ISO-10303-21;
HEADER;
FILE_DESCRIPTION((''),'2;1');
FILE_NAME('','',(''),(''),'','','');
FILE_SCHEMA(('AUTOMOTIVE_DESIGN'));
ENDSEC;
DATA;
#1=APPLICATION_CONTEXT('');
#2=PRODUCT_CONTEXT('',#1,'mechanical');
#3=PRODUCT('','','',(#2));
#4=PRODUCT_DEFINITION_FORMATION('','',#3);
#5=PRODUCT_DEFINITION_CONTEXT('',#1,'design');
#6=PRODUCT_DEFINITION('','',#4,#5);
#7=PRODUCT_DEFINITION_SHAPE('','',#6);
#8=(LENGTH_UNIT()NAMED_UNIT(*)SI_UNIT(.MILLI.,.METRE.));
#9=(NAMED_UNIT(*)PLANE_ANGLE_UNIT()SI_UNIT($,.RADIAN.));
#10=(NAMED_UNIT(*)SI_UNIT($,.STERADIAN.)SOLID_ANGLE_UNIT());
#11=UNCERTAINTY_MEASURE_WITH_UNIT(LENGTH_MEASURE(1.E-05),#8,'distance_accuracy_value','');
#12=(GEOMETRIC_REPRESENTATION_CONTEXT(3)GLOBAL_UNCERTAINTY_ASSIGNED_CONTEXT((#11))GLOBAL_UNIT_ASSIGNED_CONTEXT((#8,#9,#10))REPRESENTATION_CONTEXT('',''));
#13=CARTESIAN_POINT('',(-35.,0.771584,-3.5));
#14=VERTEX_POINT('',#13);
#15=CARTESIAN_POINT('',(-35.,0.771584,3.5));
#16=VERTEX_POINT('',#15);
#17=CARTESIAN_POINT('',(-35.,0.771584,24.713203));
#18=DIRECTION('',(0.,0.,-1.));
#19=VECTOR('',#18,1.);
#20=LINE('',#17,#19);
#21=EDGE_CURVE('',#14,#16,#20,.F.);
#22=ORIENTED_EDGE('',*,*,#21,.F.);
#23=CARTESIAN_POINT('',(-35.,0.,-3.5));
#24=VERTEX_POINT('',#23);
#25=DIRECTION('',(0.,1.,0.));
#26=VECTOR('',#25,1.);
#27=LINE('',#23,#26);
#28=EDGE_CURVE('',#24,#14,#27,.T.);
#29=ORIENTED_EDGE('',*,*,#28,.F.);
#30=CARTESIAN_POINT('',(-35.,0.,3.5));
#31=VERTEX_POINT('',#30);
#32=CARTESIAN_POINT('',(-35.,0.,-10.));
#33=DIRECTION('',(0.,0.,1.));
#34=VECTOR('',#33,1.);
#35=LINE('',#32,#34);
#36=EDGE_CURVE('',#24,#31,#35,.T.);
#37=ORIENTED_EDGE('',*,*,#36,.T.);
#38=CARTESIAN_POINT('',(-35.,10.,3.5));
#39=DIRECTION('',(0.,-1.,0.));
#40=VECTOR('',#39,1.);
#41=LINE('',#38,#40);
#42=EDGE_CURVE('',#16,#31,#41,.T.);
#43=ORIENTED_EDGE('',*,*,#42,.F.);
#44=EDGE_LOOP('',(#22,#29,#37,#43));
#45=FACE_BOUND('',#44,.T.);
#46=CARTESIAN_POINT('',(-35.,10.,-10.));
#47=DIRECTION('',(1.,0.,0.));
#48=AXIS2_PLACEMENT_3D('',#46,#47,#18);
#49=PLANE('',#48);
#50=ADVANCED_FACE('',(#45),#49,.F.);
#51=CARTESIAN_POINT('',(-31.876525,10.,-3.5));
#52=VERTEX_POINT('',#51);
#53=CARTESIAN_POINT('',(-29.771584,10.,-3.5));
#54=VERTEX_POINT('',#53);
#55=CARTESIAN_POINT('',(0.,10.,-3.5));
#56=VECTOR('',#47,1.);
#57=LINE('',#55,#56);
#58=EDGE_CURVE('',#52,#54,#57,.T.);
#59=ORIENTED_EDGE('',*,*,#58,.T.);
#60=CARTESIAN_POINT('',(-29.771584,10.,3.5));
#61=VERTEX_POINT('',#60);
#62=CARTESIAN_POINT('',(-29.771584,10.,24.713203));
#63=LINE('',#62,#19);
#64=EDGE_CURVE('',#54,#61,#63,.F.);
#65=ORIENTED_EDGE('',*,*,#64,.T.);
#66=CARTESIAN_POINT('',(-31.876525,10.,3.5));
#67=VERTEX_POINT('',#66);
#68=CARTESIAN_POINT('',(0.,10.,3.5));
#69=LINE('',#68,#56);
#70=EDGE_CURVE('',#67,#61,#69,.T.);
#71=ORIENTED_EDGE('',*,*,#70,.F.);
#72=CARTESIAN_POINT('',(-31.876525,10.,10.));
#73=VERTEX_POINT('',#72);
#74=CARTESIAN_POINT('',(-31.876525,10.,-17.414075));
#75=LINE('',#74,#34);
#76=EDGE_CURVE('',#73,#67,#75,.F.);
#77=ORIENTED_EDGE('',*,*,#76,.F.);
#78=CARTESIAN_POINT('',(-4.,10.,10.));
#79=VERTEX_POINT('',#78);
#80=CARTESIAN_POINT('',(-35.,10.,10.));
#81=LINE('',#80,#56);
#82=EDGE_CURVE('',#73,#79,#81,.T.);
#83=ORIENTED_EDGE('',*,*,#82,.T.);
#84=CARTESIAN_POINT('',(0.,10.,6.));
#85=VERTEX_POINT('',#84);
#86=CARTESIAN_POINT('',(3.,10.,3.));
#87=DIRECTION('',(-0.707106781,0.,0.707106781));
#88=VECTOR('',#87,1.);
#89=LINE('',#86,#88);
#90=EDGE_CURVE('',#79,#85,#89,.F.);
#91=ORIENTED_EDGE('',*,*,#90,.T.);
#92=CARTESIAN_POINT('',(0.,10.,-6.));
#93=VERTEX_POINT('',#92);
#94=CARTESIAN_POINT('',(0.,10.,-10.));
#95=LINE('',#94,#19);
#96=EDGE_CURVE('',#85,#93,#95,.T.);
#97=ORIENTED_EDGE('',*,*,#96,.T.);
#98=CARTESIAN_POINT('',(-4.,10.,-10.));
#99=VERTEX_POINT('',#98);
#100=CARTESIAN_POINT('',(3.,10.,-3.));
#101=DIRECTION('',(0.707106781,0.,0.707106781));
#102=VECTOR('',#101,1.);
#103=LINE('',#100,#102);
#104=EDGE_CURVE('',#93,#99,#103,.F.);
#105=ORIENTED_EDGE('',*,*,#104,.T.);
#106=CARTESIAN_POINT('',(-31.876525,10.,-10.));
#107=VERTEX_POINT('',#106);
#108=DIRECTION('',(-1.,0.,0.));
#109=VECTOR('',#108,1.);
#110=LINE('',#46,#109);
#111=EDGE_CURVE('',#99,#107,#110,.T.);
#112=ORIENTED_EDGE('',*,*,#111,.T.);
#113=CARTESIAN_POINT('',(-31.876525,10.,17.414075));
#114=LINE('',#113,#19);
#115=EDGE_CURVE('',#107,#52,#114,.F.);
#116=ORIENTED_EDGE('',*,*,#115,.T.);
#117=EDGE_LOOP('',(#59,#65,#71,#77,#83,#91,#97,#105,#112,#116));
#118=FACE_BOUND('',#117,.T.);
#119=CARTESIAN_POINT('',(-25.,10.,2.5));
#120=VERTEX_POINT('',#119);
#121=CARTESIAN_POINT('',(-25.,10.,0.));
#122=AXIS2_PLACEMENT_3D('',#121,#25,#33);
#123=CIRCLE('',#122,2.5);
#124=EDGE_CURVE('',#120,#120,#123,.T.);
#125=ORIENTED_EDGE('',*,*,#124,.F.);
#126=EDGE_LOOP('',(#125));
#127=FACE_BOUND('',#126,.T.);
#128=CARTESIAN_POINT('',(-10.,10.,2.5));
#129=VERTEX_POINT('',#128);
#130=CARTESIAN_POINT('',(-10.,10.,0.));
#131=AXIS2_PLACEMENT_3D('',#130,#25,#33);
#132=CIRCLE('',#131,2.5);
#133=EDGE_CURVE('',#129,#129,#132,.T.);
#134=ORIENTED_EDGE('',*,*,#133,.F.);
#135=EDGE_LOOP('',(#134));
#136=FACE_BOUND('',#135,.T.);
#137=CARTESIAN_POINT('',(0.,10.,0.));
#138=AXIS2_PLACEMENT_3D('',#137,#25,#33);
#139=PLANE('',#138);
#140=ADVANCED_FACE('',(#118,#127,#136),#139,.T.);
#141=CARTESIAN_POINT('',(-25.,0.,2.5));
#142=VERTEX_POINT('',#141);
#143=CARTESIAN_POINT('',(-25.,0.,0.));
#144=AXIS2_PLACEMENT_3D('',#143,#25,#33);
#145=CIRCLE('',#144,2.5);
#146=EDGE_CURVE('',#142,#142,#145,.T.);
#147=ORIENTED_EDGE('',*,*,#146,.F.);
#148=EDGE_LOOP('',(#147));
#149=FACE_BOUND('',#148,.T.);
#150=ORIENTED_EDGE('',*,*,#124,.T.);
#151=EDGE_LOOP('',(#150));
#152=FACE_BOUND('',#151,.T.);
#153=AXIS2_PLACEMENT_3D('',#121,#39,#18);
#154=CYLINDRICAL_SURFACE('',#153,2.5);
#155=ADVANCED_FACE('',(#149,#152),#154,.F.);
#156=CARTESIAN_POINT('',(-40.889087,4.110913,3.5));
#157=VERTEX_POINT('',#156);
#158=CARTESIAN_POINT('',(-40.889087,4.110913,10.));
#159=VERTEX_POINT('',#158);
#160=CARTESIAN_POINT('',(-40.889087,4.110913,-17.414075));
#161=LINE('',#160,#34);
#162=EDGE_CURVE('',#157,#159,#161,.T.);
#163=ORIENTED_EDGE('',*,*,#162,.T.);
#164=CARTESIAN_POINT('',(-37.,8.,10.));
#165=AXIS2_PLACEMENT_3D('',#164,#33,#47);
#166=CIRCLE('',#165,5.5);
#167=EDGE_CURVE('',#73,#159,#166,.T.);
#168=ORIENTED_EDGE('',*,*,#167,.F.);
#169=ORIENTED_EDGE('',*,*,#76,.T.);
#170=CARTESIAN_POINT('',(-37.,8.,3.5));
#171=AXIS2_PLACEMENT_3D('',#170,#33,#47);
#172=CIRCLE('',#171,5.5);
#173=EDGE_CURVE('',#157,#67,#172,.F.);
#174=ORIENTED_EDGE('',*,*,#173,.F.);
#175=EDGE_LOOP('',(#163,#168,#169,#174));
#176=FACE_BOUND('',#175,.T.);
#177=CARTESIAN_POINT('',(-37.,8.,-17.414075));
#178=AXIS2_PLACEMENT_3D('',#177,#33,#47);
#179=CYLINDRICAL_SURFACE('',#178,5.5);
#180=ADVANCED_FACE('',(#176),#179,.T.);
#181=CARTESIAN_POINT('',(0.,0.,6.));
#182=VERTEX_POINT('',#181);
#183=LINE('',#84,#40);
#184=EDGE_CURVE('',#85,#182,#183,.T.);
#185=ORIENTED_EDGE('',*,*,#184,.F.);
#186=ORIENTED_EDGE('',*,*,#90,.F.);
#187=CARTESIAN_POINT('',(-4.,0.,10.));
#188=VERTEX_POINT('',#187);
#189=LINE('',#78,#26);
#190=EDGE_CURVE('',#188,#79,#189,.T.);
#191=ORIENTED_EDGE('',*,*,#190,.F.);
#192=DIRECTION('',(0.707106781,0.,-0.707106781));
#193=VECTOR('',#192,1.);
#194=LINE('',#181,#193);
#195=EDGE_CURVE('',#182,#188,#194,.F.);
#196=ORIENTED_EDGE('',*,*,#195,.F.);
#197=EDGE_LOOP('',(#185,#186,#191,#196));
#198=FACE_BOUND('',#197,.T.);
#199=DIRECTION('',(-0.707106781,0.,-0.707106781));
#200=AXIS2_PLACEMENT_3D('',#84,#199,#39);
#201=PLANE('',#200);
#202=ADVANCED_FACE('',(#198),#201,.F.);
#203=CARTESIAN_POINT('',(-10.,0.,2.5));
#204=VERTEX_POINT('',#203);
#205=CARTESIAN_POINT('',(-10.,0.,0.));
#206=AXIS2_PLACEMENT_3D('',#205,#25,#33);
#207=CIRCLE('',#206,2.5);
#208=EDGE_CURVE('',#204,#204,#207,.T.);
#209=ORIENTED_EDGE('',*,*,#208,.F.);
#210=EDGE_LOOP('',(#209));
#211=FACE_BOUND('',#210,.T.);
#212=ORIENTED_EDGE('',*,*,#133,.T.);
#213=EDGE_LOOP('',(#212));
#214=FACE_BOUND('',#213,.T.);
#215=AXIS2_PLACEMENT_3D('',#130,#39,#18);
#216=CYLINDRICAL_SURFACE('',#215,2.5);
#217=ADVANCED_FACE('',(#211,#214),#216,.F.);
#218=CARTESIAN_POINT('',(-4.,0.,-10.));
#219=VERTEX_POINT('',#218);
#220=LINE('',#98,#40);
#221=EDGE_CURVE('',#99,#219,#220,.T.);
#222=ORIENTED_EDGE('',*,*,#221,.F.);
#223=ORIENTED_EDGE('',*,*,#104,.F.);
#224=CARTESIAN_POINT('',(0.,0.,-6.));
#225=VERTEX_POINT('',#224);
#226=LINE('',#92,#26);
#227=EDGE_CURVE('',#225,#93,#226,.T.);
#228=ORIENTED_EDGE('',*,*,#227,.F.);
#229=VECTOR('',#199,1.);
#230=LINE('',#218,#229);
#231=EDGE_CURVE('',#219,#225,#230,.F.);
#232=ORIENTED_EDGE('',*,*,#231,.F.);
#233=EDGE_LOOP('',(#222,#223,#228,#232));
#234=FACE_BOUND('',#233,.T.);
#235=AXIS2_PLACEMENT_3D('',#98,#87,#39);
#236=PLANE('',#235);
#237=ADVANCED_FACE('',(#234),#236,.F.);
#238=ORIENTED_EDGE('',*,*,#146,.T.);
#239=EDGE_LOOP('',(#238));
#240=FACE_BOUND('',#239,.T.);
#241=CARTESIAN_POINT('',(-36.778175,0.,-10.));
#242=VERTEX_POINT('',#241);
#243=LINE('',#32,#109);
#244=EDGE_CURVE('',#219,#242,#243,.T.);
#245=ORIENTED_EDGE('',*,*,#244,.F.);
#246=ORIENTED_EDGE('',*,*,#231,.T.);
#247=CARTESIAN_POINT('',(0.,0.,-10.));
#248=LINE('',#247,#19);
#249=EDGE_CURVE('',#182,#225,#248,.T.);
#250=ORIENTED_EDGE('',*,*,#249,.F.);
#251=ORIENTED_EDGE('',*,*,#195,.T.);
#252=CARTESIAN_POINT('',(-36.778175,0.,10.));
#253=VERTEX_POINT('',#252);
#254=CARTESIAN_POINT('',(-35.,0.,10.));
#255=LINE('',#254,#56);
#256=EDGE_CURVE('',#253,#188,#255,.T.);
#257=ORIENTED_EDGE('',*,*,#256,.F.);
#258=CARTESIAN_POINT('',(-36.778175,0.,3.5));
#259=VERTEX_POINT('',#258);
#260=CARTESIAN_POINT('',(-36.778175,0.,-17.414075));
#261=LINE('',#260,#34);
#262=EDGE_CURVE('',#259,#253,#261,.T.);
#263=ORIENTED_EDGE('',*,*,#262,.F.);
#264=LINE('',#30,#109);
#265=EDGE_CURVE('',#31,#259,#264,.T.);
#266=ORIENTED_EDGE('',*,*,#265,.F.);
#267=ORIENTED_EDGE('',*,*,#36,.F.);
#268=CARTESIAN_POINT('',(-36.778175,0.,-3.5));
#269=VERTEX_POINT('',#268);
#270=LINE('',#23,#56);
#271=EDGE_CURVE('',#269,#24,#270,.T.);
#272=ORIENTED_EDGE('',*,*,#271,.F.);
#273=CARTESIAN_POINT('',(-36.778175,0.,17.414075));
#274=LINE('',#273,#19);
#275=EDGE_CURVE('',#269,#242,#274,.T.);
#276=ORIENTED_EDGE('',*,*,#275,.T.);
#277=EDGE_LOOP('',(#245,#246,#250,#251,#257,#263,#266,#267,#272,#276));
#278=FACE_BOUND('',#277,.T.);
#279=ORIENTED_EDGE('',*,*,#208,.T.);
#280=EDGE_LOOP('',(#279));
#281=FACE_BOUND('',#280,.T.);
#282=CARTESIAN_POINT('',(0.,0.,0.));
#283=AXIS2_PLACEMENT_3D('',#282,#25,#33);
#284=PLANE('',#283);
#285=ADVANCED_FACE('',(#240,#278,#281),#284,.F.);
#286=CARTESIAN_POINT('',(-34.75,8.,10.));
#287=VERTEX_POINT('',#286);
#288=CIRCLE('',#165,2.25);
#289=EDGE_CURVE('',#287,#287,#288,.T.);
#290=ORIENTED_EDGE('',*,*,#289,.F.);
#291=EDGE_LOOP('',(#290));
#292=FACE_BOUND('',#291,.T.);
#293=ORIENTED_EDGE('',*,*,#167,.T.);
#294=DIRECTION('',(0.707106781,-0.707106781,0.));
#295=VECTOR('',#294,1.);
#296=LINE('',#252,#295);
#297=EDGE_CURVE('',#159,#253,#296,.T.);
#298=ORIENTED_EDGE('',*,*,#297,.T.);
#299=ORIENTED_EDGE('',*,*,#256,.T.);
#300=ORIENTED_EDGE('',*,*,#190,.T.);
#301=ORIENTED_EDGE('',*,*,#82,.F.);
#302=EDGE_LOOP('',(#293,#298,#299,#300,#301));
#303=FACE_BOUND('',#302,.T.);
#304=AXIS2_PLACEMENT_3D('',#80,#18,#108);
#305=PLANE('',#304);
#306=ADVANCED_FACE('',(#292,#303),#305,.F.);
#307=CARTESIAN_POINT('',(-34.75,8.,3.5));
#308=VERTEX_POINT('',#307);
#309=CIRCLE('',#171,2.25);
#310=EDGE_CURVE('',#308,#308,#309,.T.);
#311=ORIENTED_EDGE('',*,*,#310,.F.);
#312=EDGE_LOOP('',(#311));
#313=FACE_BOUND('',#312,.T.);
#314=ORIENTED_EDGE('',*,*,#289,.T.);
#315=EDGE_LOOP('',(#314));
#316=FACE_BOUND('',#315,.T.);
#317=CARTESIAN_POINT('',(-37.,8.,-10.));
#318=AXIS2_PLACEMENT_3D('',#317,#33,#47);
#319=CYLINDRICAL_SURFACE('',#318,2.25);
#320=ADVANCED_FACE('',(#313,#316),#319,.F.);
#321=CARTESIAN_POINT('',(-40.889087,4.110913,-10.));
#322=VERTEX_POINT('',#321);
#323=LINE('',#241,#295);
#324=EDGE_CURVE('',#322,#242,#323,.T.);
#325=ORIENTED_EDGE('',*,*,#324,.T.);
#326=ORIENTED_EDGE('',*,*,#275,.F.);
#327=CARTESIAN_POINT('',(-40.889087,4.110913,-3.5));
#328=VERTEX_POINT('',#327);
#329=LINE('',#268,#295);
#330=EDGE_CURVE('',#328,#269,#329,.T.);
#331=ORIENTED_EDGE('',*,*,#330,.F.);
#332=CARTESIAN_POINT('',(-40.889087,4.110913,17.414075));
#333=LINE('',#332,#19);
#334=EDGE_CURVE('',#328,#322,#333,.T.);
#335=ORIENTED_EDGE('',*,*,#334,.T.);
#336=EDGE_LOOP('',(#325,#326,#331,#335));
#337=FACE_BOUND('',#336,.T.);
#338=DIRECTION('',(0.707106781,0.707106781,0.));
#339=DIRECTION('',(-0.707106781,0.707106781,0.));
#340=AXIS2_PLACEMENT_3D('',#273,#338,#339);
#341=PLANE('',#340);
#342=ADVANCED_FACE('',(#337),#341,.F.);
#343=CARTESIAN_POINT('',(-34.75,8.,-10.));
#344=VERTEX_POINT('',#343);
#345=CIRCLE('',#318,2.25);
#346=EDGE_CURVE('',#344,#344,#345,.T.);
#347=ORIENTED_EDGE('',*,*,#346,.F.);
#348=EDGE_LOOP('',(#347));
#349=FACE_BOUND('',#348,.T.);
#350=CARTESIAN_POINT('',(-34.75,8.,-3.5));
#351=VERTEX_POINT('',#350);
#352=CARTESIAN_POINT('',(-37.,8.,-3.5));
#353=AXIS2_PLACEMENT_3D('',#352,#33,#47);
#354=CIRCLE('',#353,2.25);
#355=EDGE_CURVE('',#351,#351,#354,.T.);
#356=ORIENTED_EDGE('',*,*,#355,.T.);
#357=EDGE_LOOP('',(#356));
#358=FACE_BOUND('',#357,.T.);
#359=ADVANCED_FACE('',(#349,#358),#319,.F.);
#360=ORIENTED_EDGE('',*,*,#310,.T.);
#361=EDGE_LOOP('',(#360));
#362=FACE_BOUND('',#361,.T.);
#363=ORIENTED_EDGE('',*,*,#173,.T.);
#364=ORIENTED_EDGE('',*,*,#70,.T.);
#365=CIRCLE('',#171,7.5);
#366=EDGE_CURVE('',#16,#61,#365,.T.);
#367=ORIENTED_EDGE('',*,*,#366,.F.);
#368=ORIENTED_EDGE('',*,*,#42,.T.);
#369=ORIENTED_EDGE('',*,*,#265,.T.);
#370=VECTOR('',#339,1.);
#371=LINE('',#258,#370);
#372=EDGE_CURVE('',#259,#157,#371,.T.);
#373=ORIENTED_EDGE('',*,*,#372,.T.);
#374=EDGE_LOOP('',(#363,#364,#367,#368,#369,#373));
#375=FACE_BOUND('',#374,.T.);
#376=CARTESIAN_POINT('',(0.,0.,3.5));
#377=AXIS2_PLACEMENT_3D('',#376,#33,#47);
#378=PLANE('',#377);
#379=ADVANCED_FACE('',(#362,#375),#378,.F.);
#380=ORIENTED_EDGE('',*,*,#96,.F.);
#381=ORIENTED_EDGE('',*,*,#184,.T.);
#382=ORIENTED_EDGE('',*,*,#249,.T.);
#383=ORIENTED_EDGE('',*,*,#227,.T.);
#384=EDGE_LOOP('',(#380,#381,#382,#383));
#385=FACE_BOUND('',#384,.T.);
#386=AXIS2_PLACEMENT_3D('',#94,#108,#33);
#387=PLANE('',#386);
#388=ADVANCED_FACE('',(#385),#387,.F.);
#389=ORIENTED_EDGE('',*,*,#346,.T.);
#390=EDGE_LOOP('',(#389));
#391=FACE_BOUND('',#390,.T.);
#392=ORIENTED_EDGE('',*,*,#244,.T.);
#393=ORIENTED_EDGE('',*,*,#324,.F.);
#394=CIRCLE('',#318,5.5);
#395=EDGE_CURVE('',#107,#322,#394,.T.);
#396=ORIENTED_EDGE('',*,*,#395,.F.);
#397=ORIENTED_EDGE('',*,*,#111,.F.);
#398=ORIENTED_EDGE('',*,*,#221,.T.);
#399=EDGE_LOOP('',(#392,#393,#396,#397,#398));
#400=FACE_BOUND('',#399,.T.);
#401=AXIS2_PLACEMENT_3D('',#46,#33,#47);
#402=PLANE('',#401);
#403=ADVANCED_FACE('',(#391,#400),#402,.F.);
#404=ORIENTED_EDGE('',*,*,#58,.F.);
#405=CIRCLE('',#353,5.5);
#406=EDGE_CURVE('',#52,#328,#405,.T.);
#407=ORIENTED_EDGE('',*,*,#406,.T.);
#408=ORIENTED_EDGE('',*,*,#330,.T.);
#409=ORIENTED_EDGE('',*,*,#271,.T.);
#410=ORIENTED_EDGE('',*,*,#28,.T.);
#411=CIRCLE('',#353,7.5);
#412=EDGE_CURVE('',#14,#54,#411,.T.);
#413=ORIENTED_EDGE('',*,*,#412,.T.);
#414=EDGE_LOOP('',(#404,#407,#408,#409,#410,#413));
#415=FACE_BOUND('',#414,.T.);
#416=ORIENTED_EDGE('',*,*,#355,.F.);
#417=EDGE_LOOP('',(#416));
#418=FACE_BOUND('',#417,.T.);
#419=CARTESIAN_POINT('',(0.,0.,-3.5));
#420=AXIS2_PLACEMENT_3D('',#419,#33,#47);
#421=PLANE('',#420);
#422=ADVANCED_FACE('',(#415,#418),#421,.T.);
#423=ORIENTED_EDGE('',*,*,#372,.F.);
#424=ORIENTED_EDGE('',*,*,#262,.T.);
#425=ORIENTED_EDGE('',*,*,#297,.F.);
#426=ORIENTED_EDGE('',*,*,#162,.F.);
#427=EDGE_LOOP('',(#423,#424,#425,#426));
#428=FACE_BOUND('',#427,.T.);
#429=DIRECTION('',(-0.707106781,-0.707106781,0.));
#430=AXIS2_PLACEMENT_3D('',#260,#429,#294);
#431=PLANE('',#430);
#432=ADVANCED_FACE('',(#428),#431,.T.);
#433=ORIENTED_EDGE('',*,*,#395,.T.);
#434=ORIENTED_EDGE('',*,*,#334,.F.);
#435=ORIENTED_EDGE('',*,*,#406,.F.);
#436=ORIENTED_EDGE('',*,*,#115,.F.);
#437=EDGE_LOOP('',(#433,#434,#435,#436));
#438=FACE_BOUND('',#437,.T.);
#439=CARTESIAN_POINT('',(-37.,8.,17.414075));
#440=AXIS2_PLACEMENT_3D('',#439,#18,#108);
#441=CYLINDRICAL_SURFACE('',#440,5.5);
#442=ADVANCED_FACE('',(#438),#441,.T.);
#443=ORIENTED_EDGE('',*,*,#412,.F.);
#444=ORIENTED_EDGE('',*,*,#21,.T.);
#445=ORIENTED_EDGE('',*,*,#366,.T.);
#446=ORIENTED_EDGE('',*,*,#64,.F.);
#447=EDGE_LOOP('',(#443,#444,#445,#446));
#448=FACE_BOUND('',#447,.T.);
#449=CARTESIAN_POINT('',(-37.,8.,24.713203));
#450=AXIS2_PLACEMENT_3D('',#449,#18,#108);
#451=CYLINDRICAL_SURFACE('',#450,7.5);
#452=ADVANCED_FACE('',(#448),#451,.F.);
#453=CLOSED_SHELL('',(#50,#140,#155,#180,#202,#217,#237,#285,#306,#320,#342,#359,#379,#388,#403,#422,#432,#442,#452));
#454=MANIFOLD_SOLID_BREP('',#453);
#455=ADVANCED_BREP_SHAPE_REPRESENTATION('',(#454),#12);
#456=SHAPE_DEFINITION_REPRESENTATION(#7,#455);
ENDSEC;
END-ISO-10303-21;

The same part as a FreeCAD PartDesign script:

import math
import FreeCAD as App
import Part
import Sketcher
Q = App.Units.Quantity


def edges_at(feature, points):
    """Names of the edges that pass closest to the given points."""
    edges = feature.Shape.Edges
    near = lambda p: min(range(len(edges)), key=lambda i: edges[i].distToShape(Part.Vertex(*p))[0])
    return sorted({f"Edge{near(p) + 1}" for p in points})

doc = App.newDocument("Part")
body = doc.addObject("PartDesign::Body", "Body")

sketch1 = body.newObject("Sketcher::SketchObject", "Sketch")
sketch1.AttachmentSupport = (doc.getObject("XZ_Plane"), [""])
sketch1.MapMode = "FlatFace"
sketch1.addGeometry([
    Part.LineSegment(App.Vector(-35, -10, 0), App.Vector(-35, 10, 0)),
    Part.LineSegment(App.Vector(-35, 10, 0), App.Vector(0, 10, 0)),
    Part.LineSegment(App.Vector(0, 10, 0), App.Vector(0, -10, 0)),
    Part.LineSegment(App.Vector(0, -10, 0), App.Vector(-35, -10, 0)),
    Part.Circle(App.Vector(-25, 0, 0), App.Vector(0, 0, 1), 2.5),
    Part.Circle(App.Vector(-10, 0, 0), App.Vector(0, 0, 1), 2.5),
], False)
sketch1.addConstraint([
    Sketcher.Constraint("Coincident", 0, 2, 1, 1),
    Sketcher.Constraint("Coincident", 1, 2, 2, 1),
    Sketcher.Constraint("Coincident", 2, 2, 3, 1),
    Sketcher.Constraint("Coincident", 3, 2, 0, 1),
    Sketcher.Constraint("Vertical", 0),
    Sketcher.Constraint("Horizontal", 1),
    Sketcher.Constraint("Vertical", 2),
    Sketcher.Constraint("Horizontal", 3),
    Sketcher.Constraint("Equal", 4, 5),
    Sketcher.Constraint("Symmetric", 1, 2, 2, 2, -1, 1),
    Sketcher.Constraint("PointOnObject", 4, 3, -1),
    Sketcher.Constraint("PointOnObject", 5, 3, -1),
    Sketcher.Constraint("Diameter", 4, 5.0),
    Sketcher.Constraint("DistanceX", 1, 1, 1, 2, 35.0),
    Sketcher.Constraint("DistanceY", 0, 1, 0, 2, 20.0),
    Sketcher.Constraint("DistanceX", 4, 3, -1, 1, 25.0),
    Sketcher.Constraint("DistanceX", 5, 3, -1, 1, 10.0),
])
pad1 = body.newObject("PartDesign::Pad", "Pad")
pad1.Profile = sketch1
pad1.Length = 10
pad1.Reversed = True

sketch2 = body.newObject("Sketcher::SketchObject", "Sketch001")
sketch2.AttachmentSupport = (doc.getObject("XY_Plane"), [""])
sketch2.MapMode = "FlatFace"
sketch2.AttachmentOffset = App.Placement(App.Vector(0, 0, 10), App.Rotation())
sketch2.addGeometry([
    Part.LineSegment(App.Vector(-36.8, 0, 0), App.Vector(-35, 0, 0)),
    Part.LineSegment(App.Vector(-35, 0, 0), App.Vector(-35, 2.9, 0)),
    Part.ArcOfCircle(Part.Circle(App.Vector(-37, 8, 0), App.Vector(0, 0, 1), 5.5), math.radians(-69), math.radians(225)),
    Part.LineSegment(App.Vector(-40.9, 4.1, 0), App.Vector(-36.8, 0, 0)),
], False)
sketch2.addConstraint([
    Sketcher.Constraint("Coincident", 0, 2, 1, 1),
    Sketcher.Constraint("Coincident", 1, 2, 2, 1),
    Sketcher.Constraint("Tangent", 2, 2, 3, 1),
    Sketcher.Constraint("Coincident", 3, 2, 0, 1),
    Sketcher.Constraint("Horizontal", 0),
    Sketcher.Constraint("Vertical", 1),
    Sketcher.Constraint("PointOnObject", 0, 2, -1),
    Sketcher.Constraint("Radius", 2, 5.5),
    Sketcher.Constraint("Angle", 3, Q("-45 deg")),
    Sketcher.Constraint("DistanceX", 2, 3, -1, 1, 37.0),
    Sketcher.Constraint("DistanceY", -1, 1, 2, 3, 8.0),
    Sketcher.Constraint("DistanceX", 0, 2, -1, 1, 35.0),
])
pad2 = body.newObject("PartDesign::Pad", "Pad001")
pad2.Profile = sketch2
pad2.Length = 6.5
pad2.Reversed = True
doc.recompute()

mirrored = body.newObject("PartDesign::Mirrored", "Mirrored")
mirrored.Originals = [pad2]
mirrored.MirrorPlane = (doc.getObject("XY_Plane"), [""])
body.Tip = mirrored

sketch3 = body.newObject("Sketcher::SketchObject", "Sketch002")
sketch3.AttachmentSupport = (doc.getObject("XY_Plane"), [""])
sketch3.MapMode = "FlatFace"
sketch3.AttachmentOffset = App.Placement(App.Vector(0, 0, -3.5), App.Rotation())
sketch3.addGeometry(Part.Circle(App.Vector(-37, 8, 0), App.Vector(0, 0, 1), 8), False)
sketch3.addConstraint([
    Sketcher.Constraint("Diameter", 0, 15.0),
    Sketcher.Constraint("DistanceX", 0, 3, -1, 1, 37.0),
    Sketcher.Constraint("DistanceY", -1, 1, 0, 3, 8.0),
])
pocket1 = body.newObject("PartDesign::Pocket", "Pocket")
pocket1.Profile = sketch3
pocket1.Length = 7
pocket1.Reversed = True

sketch4 = body.newObject("Sketcher::SketchObject", "Sketch003")
sketch4.AttachmentSupport = (doc.getObject("XY_Plane"), [""])
sketch4.MapMode = "FlatFace"
sketch4.AttachmentOffset = App.Placement(App.Vector(0, 0, 10), App.Rotation())
sketch4.addGeometry(Part.Circle(App.Vector(-37, 8, 0), App.Vector(0, 0, 1), 2.2), False)
sketch4.addConstraint([
    Sketcher.Constraint("Diameter", 0, 4.5),
    Sketcher.Constraint("DistanceX", 0, 3, -1, 1, 37.0),
    Sketcher.Constraint("DistanceY", -1, 1, 0, 3, 8.0),
])
pocket2 = body.newObject("PartDesign::Pocket", "Pocket001")
pocket2.Profile = sketch4
pocket2.Type = "ThroughAll"
doc.recompute()

chamfer = body.newObject("PartDesign::Chamfer", "Chamfer")
chamfer.Base = (pocket2, edges_at(pocket2, [(0, 5, -10), (0, 5, 10)]))
chamfer.Size = 4

doc.recompute()
